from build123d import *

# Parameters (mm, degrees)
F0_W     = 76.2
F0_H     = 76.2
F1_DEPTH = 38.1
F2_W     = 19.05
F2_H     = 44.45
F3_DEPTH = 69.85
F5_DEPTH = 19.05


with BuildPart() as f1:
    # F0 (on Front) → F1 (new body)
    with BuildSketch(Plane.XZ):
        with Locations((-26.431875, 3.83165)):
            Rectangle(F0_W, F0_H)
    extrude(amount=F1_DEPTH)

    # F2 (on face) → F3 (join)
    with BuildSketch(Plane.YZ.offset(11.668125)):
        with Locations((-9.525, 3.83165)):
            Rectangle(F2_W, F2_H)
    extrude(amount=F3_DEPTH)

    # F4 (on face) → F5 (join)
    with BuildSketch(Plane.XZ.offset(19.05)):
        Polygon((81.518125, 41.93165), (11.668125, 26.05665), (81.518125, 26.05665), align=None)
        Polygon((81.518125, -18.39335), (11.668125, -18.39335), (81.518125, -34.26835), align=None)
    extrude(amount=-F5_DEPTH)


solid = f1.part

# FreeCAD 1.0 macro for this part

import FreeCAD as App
import Part
import Sketcher
from FreeCAD import Vector
Q = App.Units.Quantity


def add_polygon(sketch, points):
    """Adds a closed chain of lines whose ends are joined by coincident constraints."""
    first, n = sketch.GeometryCount, len(points)
    for a, b in zip(points, points[1:] + points[:1]):
        sketch.addGeometry(Part.LineSegment(App.Vector(*a, 0), App.Vector(*b, 0)), False)
    for i in range(n):
        sketch.addConstraint(Sketcher.Constraint("Coincident", first + i, 2, first + (i + 1) % n, 1))

doc = App.newDocument("Part")
body = doc.addObject("PartDesign::Body", "Body")

# Sketch on XZ plane
sketch1 = body.newObject("Sketcher::SketchObject", "Sketch")
sketch1.AttachmentSupport = (doc.getObject("XZ_Plane"), [""])
sketch1.MapMode = "FlatFace"
add_polygon(sketch1, [(-65, 42), (-65, -34), (12, -34), (12, 42)])  # lines 0-3
sketch1.addConstraint([
    Sketcher.Constraint("Vertical", 0),
    Sketcher.Constraint("Horizontal", 1),
    Sketcher.Constraint("Vertical", 2),
    Sketcher.Constraint("Horizontal", 3),
    Sketcher.Constraint("Equal", 3, 0),
    Sketcher.Constraint("DistanceX", 1, 1, 1, 2, Q("3 in")),
    Sketcher.Constraint("DistanceY", 0, 2, -1, 1, Q("34.26835 mm")),
    Sketcher.Constraint("DistanceX", 0, 2, -1, 1, Q("64.531875 mm")),
])
pad1 = body.newObject("PartDesign::Pad", "Pad")
pad1.Profile = sketch1
pad1.Length = Q("1.5 in")

# Sketch on YZ plane
sketch2 = body.newObject("Sketcher::SketchObject", "Sketch001")
sketch2.AttachmentSupport = (doc.getObject("YZ_Plane"), [""])
sketch2.MapMode = "FlatFace"
sketch2.AttachmentOffset = App.Placement(Vector(0, 0, 11.668125), App.Rotation())
add_polygon(sketch2, [(-19, 26), (-19, -18), (0, -18), (0, 26)])  # lines 0-3
sketch2.addConstraint([
    Sketcher.Constraint("Vertical", 0),
    Sketcher.Constraint("Horizontal", 1),
    Sketcher.Constraint("Vertical", 2),
    Sketcher.Constraint("Horizontal", 3),
    Sketcher.Constraint("PointOnObject", 1, 2, -2),
    Sketcher.Constraint("DistanceX", 1, 1, 1, 2, Q("0.75 in")),
    Sketcher.Constraint("DistanceY", 0, 2, 0, 1, Q("1.75 in")),
    Sketcher.Constraint("DistanceY", 0, 2, -1, 1, Q("18.39335 mm")),
])
pad2 = body.newObject("PartDesign::Pad", "Pad001")
pad2.Profile = sketch2
pad2.Length = Q("2.75 in")

# Sketch on XZ plane
sketch3 = body.newObject("Sketcher::SketchObject", "Sketch002")
sketch3.AttachmentSupport = (doc.getObject("XZ_Plane"), [""])
sketch3.MapMode = "FlatFace"
sketch3.AttachmentOffset = App.Placement(Vector(0, 0, 0.75 * 25.4), App.Rotation())
add_polygon(sketch3, [(82, 42), (12, 26), (82, 26)])  # lines 0-2
add_polygon(sketch3, [(82, -18), (12, -18), (82, -34)])  # lines 3-5
sketch3.addConstraint([
    Sketcher.Constraint("Horizontal", 1),
    Sketcher.Constraint("Vertical", 2),
    Sketcher.Constraint("Horizontal", 3),
    Sketcher.Constraint("Vertical", 5),
    Sketcher.Constraint("Vertical", 0, 2, 3, 2),
    Sketcher.Constraint("Vertical", 2, 2, 4, 2),
    Sketcher.Constraint("Equal", 2, 5),
    Sketcher.Constraint("DistanceY", 4, 2, 2, 2, Q("3 in")),
    Sketcher.Constraint("DistanceX", 1, 1, 1, 2, Q("2.75 in")),
    Sketcher.Constraint("DistanceY", 2, 1, 2, 2, Q("0.625 in")),
    Sketcher.Constraint("DistanceY", -1, 1, 0, 2, Q("26.05665 mm")),
    Sketcher.Constraint("DistanceX", -1, 1, 0, 2, Q("11.668125 mm")),
])
pad3 = body.newObject("PartDesign::Pad", "Pad002")
pad3.Profile = sketch3
pad3.Length = Q("0.75 in")
pad3.Reversed = True

doc.recompute()
